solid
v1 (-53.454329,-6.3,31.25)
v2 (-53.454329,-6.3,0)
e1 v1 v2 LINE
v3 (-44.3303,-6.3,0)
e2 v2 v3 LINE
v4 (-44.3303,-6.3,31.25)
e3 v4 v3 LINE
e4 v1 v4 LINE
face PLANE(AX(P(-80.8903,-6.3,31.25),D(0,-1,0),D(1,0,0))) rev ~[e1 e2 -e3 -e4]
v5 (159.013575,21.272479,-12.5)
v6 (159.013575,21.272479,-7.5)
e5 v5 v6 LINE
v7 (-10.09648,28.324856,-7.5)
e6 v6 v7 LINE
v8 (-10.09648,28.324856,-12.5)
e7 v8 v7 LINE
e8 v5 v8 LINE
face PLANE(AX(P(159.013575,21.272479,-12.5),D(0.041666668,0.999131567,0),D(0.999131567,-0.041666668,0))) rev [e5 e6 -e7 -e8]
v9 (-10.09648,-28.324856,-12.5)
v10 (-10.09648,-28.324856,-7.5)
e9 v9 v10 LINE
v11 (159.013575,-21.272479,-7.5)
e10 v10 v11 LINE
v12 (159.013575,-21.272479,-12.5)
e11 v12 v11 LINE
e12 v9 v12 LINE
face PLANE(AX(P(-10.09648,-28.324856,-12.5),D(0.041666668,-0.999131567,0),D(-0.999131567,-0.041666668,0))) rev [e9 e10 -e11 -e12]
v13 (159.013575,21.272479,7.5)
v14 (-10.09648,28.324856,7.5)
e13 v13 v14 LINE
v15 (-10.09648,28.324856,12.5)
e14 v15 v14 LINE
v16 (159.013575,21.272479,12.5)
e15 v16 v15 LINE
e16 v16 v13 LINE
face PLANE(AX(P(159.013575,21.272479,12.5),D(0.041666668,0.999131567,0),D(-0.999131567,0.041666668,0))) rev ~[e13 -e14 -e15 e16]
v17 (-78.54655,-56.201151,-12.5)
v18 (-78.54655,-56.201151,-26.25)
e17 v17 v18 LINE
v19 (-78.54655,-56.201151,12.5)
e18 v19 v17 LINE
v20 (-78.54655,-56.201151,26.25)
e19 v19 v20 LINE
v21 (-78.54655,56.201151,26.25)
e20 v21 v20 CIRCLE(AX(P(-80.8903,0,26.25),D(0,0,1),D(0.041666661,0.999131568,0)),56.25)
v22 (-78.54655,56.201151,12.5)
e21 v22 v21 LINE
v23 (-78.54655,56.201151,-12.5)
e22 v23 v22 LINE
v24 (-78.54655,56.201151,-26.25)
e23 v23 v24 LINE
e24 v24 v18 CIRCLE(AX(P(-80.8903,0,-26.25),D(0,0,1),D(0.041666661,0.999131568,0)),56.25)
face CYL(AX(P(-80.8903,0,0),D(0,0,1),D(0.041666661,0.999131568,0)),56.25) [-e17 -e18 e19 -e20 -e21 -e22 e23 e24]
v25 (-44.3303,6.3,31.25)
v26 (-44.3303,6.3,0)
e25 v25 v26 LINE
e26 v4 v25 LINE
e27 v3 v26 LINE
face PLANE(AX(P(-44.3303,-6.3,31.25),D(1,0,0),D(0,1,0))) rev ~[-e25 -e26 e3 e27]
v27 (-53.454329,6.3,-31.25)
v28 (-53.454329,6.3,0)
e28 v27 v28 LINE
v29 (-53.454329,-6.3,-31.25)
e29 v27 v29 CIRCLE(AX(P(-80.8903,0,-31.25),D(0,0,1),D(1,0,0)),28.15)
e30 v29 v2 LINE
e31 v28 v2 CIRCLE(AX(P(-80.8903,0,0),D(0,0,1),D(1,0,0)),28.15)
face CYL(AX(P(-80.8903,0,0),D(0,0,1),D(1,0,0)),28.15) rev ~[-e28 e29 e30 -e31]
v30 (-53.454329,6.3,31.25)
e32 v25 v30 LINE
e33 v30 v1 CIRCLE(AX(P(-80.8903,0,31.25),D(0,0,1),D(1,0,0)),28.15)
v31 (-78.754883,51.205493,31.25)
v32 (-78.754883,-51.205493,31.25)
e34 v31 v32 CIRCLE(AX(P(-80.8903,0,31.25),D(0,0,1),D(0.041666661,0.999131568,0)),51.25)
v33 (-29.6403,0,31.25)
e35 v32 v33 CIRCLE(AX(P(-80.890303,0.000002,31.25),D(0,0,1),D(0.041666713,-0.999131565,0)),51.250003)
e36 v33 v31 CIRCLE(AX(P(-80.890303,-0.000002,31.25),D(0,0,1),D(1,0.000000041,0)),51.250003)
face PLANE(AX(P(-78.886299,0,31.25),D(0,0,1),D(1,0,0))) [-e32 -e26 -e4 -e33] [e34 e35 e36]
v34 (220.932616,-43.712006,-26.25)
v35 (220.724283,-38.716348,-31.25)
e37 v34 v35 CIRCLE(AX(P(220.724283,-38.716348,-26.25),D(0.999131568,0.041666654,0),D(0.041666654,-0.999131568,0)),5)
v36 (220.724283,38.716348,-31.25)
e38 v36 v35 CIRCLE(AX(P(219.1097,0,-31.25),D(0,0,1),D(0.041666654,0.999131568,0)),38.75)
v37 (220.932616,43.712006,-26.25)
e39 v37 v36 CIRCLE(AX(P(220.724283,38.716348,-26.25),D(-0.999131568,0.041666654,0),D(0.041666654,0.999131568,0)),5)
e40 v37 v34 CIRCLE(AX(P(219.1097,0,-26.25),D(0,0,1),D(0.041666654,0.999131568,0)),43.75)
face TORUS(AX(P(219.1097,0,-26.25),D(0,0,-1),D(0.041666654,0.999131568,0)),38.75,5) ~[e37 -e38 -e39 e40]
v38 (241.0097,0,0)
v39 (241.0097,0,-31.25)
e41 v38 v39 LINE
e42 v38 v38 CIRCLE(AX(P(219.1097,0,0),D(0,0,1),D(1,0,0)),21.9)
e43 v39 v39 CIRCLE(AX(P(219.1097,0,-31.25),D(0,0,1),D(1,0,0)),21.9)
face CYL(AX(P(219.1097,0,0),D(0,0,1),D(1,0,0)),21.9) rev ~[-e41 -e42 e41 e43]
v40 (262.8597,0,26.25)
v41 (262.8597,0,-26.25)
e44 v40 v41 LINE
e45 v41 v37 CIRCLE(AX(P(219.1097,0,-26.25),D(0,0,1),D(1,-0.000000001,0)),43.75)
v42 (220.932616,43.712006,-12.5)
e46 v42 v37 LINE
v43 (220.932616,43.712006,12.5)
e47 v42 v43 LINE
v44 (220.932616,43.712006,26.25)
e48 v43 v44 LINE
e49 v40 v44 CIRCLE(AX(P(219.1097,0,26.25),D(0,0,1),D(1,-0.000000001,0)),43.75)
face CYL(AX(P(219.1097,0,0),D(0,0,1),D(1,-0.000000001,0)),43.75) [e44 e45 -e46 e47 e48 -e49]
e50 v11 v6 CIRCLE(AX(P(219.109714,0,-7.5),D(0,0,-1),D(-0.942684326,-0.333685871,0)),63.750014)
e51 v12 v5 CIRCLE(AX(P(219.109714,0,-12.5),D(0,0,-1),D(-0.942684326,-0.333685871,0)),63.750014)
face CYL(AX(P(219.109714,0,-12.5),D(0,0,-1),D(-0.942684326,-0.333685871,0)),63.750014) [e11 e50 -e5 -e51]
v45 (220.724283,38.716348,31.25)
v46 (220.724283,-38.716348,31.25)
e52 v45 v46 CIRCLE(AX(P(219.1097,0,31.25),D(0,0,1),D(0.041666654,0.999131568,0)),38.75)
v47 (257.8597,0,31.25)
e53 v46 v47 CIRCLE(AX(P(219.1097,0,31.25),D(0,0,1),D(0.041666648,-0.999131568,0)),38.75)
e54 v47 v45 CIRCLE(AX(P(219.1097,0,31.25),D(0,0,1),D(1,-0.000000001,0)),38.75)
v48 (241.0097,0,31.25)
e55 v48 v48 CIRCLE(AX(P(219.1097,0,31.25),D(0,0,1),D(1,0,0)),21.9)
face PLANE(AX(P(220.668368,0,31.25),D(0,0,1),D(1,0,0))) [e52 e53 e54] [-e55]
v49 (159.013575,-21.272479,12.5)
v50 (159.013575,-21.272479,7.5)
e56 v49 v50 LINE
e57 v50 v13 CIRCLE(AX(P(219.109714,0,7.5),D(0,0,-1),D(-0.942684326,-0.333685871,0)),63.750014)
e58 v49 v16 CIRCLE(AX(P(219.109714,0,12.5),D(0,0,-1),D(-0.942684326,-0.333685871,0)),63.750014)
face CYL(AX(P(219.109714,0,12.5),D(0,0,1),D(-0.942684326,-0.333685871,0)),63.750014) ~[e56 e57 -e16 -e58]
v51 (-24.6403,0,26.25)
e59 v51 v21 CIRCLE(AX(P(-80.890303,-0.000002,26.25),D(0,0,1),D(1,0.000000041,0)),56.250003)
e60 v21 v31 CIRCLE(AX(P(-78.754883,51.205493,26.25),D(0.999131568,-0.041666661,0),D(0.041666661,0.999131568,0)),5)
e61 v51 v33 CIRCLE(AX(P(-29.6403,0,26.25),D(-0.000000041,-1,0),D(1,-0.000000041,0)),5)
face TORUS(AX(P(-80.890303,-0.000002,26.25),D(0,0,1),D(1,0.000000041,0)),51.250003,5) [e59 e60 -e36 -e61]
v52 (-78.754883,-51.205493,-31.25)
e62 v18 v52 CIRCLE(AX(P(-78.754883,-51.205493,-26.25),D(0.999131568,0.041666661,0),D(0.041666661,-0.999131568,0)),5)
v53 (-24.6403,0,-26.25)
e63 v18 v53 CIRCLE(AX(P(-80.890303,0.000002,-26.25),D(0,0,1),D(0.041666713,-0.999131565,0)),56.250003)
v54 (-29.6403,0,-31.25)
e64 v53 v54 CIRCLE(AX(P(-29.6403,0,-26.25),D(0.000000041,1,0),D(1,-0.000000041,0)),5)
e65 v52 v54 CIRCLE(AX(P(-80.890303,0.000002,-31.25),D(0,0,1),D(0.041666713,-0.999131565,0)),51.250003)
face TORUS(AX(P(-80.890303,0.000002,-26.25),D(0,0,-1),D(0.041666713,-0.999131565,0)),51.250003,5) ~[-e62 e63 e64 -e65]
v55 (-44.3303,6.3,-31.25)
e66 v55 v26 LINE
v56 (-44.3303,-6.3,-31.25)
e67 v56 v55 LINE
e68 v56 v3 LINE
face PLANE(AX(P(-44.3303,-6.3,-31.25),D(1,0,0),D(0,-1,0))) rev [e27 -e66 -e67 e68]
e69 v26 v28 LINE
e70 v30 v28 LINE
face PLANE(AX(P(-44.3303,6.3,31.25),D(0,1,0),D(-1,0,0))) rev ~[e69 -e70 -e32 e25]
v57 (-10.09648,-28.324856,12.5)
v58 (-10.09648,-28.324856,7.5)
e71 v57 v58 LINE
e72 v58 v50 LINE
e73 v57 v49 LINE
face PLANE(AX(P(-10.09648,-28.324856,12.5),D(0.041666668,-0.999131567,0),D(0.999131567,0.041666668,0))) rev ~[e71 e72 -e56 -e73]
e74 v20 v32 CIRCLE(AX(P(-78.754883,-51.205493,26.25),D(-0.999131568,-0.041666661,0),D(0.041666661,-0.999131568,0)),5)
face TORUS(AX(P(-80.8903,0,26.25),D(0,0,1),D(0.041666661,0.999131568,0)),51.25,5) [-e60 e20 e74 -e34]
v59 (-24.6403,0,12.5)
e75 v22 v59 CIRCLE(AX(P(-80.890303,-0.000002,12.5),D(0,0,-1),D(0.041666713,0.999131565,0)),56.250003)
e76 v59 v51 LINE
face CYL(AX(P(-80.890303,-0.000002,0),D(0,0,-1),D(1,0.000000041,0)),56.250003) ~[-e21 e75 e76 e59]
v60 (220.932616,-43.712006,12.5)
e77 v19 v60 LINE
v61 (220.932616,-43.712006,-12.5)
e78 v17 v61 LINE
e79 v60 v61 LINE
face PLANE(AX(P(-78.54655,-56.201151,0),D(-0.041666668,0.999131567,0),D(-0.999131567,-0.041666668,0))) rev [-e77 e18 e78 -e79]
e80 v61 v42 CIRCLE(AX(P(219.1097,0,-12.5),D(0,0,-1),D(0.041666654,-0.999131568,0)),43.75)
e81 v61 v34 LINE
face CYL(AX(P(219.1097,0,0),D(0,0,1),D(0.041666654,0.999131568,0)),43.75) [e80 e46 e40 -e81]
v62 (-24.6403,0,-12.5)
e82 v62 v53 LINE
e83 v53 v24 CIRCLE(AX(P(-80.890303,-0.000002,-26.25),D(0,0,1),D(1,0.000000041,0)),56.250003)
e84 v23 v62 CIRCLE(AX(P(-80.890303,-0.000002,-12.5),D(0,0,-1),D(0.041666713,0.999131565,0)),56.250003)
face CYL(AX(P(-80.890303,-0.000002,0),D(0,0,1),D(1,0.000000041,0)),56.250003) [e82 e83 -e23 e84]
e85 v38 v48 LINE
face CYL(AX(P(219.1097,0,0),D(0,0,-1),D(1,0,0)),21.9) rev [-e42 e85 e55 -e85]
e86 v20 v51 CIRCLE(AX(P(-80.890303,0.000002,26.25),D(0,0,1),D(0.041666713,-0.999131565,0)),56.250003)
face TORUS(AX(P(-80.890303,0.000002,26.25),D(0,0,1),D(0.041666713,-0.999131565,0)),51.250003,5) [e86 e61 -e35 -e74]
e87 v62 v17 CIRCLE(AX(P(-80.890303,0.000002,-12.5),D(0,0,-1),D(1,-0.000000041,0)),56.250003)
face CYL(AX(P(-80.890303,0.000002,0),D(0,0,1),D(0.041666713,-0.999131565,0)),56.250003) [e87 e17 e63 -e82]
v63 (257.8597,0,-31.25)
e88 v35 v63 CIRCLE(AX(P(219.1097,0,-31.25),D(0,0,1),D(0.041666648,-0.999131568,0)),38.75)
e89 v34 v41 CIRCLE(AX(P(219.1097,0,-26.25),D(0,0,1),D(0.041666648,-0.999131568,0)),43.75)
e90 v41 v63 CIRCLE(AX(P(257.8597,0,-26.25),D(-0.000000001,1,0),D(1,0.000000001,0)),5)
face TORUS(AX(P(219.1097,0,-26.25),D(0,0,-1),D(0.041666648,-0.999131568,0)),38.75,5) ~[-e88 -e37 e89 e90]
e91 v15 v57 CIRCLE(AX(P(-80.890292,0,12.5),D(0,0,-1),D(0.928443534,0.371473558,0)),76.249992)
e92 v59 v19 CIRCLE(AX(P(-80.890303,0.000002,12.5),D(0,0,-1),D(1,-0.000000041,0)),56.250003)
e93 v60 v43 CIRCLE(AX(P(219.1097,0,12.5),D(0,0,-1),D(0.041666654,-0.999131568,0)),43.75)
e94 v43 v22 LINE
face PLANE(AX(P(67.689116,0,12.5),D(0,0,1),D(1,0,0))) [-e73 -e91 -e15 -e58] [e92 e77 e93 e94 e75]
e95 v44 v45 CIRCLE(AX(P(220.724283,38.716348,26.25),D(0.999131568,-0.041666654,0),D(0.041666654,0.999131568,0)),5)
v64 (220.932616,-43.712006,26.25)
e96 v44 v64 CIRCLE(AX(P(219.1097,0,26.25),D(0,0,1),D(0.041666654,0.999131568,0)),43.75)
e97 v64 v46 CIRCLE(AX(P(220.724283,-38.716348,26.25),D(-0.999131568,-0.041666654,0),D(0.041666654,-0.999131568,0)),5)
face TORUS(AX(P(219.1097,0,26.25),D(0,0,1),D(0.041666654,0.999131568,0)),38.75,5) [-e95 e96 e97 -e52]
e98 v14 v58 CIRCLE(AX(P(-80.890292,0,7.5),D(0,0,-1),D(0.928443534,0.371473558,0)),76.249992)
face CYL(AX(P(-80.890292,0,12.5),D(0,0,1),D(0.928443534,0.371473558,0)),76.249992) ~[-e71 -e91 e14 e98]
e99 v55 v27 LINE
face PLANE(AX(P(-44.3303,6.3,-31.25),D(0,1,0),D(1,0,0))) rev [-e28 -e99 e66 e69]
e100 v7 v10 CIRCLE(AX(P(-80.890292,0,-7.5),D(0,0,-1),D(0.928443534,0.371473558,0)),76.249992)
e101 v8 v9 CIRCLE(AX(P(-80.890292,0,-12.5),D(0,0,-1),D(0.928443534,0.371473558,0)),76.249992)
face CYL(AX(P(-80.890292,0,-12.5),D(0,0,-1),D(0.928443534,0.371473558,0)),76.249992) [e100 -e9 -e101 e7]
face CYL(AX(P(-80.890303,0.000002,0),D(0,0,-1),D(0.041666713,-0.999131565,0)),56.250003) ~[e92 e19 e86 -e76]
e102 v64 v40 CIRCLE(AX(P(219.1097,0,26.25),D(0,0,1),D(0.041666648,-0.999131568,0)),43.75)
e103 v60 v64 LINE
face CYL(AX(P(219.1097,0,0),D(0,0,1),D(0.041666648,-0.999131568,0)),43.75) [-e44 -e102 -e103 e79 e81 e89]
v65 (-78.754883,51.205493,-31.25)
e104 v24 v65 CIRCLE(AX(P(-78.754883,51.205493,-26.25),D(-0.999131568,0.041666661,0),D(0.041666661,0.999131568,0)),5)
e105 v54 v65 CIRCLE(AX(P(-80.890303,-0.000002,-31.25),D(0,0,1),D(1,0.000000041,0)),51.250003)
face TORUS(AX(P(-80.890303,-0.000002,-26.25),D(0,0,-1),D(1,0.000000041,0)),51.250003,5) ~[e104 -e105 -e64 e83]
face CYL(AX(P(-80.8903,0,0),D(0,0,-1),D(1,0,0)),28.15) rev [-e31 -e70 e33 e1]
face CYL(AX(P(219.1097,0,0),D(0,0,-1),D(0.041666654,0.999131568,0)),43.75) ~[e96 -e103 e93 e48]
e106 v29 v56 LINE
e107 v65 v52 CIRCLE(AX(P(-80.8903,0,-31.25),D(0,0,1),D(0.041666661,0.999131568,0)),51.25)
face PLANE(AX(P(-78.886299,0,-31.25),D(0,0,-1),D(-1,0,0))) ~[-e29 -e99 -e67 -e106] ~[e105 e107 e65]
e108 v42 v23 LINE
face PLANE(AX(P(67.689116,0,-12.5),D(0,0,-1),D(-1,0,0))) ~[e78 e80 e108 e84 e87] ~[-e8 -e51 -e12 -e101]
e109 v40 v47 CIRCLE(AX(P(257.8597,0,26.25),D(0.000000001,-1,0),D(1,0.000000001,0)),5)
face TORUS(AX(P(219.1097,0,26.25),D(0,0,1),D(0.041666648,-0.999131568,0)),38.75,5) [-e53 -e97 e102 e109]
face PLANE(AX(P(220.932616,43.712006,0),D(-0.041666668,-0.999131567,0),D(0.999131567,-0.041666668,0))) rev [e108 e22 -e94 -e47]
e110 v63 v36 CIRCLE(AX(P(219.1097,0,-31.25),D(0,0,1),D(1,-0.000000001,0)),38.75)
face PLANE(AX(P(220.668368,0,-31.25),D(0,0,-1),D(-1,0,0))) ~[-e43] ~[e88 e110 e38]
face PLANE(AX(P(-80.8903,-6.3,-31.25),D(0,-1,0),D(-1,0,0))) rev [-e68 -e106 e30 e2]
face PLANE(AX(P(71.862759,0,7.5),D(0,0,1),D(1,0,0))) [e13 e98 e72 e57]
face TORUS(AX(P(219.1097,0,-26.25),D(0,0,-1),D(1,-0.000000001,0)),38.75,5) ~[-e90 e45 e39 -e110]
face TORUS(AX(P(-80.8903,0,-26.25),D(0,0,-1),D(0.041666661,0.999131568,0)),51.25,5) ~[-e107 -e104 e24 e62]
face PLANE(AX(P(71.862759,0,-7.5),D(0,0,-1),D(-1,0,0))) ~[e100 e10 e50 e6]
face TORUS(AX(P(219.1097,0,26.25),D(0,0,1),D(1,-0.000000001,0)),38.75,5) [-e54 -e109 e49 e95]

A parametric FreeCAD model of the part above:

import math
import FreeCAD as App
import Part
import Sketcher
from FreeCAD import Vector


def edges_at(feature, points):
    """Names of the edges that pass closest to the given points."""
    edges = feature.Shape.Edges
    near = lambda p: min(range(len(edges)), key=lambda i: edges[i].distToShape(Part.Vertex(*p))[0])
    return sorted({f"Edge{near(p) + 1}" for p in points})


def add_polygon(sketch, points):
    """Adds a closed chain of lines whose ends are joined by coincident constraints."""
    first, n = sketch.GeometryCount, len(points)
    for a, b in zip(points, points[1:] + points[:1]):
        sketch.addGeometry(Part.LineSegment(App.Vector(*a, 0), App.Vector(*b, 0)), False)
    for i in range(n):
        sketch.addConstraint(Sketcher.Constraint("Coincident", first + i, 2, first + (i + 1) % n, 1))

doc = App.newDocument("Part")
body = doc.addObject("PartDesign::Body", "Body")

sketch1 = body.newObject("Sketcher::SketchObject", "Sketch")
sketch1.AttachmentSupport = (doc.getObject("XY_Plane"), [""])
sketch1.MapMode = "FlatFace"
sketch1.addGeometry(Part.ArcOfCircle(Part.Circle(Vector(-81, 0, 0), Vector(0, 0, 1), 56), math.radians(0), math.radians(88)), False)
sketch1.addGeometry(Part.ArcOfCircle(Part.Circle(Vector(-81, 0, 0), Vector(0, 0, 1), 56), math.radians(-88), math.radians(0)), False)
sketch1.addGeometry(Part.LineSegment(Vector(-79, -56, 0), Vector(221, -44, 0)), False)
sketch1.addGeometry(Part.ArcOfCircle(Part.Circle(Vector(219, 0, 0), Vector(0, 0, 1), 44), math.radians(88), math.radians(272)), False)
sketch1.addGeometry(Part.LineSegment(Vector(221, 44, 0), Vector(-79, 56, 0)), False)
sketch1.addConstraint(Sketcher.Constraint("Tangent", 0, 1, 1, 2))
sketch1.addConstraint(Sketcher.Constraint("Tangent", 1, 1, 2, 1))
sketch1.addConstraint(Sketcher.Constraint("Tangent", 2, 2, 3, 2))
sketch1.addConstraint(Sketcher.Constraint("Tangent", 3, 1, 4, 1))
sketch1.addConstraint(Sketcher.Constraint("Tangent", 4, 2, 0, 2))
sketch1.addConstraint(Sketcher.Constraint("Equal", 0, 1))
sketch1.addConstraint(Sketcher.Constraint("Symmetric", 2, 2, 3, 1, -1))
sketch1.addConstraint(Sketcher.Constraint("PointOnObject", 0, 1, -1))
sketch1.addConstraint(Sketcher.Constraint("Radius", 3, 43.75))
sketch1.addConstraint(Sketcher.Constraint("DistanceX", 0, 1, 3, 3, 243.75))
sketch1.addConstraint(Sketcher.Constraint("Radius", 0, 56.250003))
sketch1.addConstraint(Sketcher.Constraint("DistanceX", -1, 1, 3, 3, 219.1097))
pad1 = body.newObject("PartDesign::Pad", "Pad")
pad1.Profile = sketch1
pad1.Length = 12.5

sketch2 = body.newObject("Sketcher::SketchObject", "Sketch001")
sketch2.AttachmentSupport = (doc.getObject("XY_Plane"), [""])
sketch2.MapMode = "FlatFace"
sketch2.addGeometry(Part.ArcOfCircle(Part.Circle(Vector(219, 0, 0), Vector(0, 0, 1), 44), math.radians(0), math.radians(88)), False)
sketch2.addGeometry(Part.ArcOfCircle(Part.Circle(Vector(219, 0, 0), Vector(0, 0, 1), 44), math.radians(88), math.radians(272)), False)
sketch2.addGeometry(Part.ArcOfCircle(Part.Circle(Vector(219, 0, 0), Vector(0, 0, 1), 44), math.radians(-88), math.radians(0)), False)
sketch2.addGeometry(Part.Circle(Vector(219, 0, 0), Vector(0, 0, 1), 22), False)
sketch2.addGeometry(Part.ArcOfCircle(Part.Circle(Vector(-81, 0, 0), Vector(0, 0, 1), 56), math.radians(-88), math.radians(0)), False)
sketch2.addGeometry(Part.ArcOfCircle(Part.Circle(Vector(-81, 0, 0), Vector(0, 0, 1), 56), math.radians(0), math.radians(88)), False)
sketch2.addGeometry(Part.ArcOfCircle(Part.Circle(Vector(-81, 0, 0), Vector(0, 0, 1), 56), math.radians(88), math.radians(272)), False)
sketch2.addGeometry(Part.Circle(Vector(-81, 0, 0), Vector(0, 0, 1), 28), False)
sketch2.addConstraint(Sketcher.Constraint("Tangent", 0, 2, 1, 1))
sketch2.addConstraint(Sketcher.Constraint("Tangent", 1, 2, 2, 1))
sketch2.addConstraint(Sketcher.Constraint("Tangent", 2, 2, 0, 1))
sketch2.addConstraint(Sketcher.Constraint("Tangent", 4, 2, 5, 1))
sketch2.addConstraint(Sketcher.Constraint("Tangent", 5, 2, 6, 1))
sketch2.addConstraint(Sketcher.Constraint("Tangent", 6, 2, 4, 1))
sketch2.addConstraint(Sketcher.Constraint("Coincident", 3, 3, 0, 3))
sketch2.addConstraint(Sketcher.Constraint("Coincident", 7, 3, 4, 3))
sketch2.addConstraint(Sketcher.Constraint("Symmetric", 0, 2, 1, 2, -1))
sketch2.addConstraint(Sketcher.Constraint("Symmetric", 5, 2, 6, 2, -1))
sketch2.addConstraint(Sketcher.Constraint("PointOnObject", 2, 2, -1))
sketch2.addConstraint(Sketcher.Constraint("PointOnObject", 4, 2, -1))
sketch2.addConstraint(Sketcher.Constraint("Diameter", 3, 43.8))
sketch2.addConstraint(Sketcher.Constraint("Diameter", 7, 56.3))
sketch2.addConstraint(Sketcher.Constraint("Radius", 0, 43.75))
sketch2.addConstraint(Sketcher.Constraint("Radius", 6, 56.25))
sketch2.addConstraint(Sketcher.Constraint("DistanceX", 6, 3, 1, 3, 300.0))
sketch2.addConstraint(Sketcher.Constraint("DistanceX", -1, 1, 0, 3, 219.1097))
sketch2.addConstraint(Sketcher.Constraint("DistanceX", 5, 2, -1, 1, 78.54655))
sketch2.addConstraint(Sketcher.Constraint("DistanceY", 1, 2, 0, 2, 87.424012))
pad2 = body.newObject("PartDesign::Pad", "Pad001")
pad2.Profile = sketch2
pad2.Length = 31.25

sketch3 = body.newObject("Sketcher::SketchObject", "Sketch002")
sketch3.AttachmentSupport = (doc.getObject("XY_Plane"), [""])
sketch3.MapMode = "FlatFace"
sketch3.AttachmentOffset = App.Placement(Vector(0, 0, 12.5), App.Rotation())
sketch3.addGeometry(Part.ArcOfCircle(Part.Circle(Vector(219, 0, 0), Vector(0, 0, 1), 64), math.radians(161), math.radians(199)), False)
sketch3.addGeometry(Part.LineSegment(Vector(159, 21, 0), Vector(-10, 28, 0)), False)
sketch3.addGeometry(Part.ArcOfCircle(Part.Circle(Vector(-81, 0, 0), Vector(0, 0, 1), 76), math.radians(-22), math.radians(22)), False)
sketch3.addGeometry(Part.LineSegment(Vector(-10, -28, 0), Vector(159, -21, 0)), False)
sketch3.addConstraint(Sketcher.Constraint("Coincident", 0, 1, 1, 1))
sketch3.addConstraint(Sketcher.Constraint("Coincident", 1, 2, 2, 2))
sketch3.addConstraint(Sketcher.Constraint("Coincident", 2, 1, 3, 1))
sketch3.addConstraint(Sketcher.Constraint("Coincident", 3, 2, 0, 2))
sketch3.addConstraint(Sketcher.Constraint("Symmetric", 1, 2, 2, 1, -1))
sketch3.addConstraint(Sketcher.Constraint("Symmetric", 0, 1, 3, 2, -1))
sketch3.addConstraint(Sketcher.Constraint("Radius", 0, 63.750014))
sketch3.addConstraint(Sketcher.Constraint("Radius", 2, 76.249992))
sketch3.addConstraint(Sketcher.Constraint("DistanceY", -1, 1, 0, 1, 21.272479))
sketch3.addConstraint(Sketcher.Constraint("DistanceX", 1, 2, -1, 1, 10.09648))
sketch3.addConstraint(Sketcher.Constraint("DistanceY", 2, 1, 1, 2, 56.649712))
sketch3.addConstraint(Sketcher.Constraint("Distance", 1, 169.257043))
pocket1 = body.newObject("PartDesign::Pocket", "Pocket")
pocket1.Profile = sketch3
pocket1.Length = 5

sketch4 = body.newObject("Sketcher::SketchObject", "Sketch003")
sketch4.AttachmentSupport = (doc.getObject("XY_Plane"), [""])
sketch4.MapMode = "FlatFace"
sketch4.AttachmentOffset = App.Placement(Vector(0, 0, 31.25), App.Rotation())
add_polygon(sketch4, [(-44, 6), (-81, 6), (-81, -6), (-44, -6)])
sketch4.addConstraint(Sketcher.Constraint("Horizontal", 0))
sketch4.addConstraint(Sketcher.Constraint("Vertical", 1))
sketch4.addConstraint(Sketcher.Constraint("Horizontal", 2))
sketch4.addConstraint(Sketcher.Constraint("Vertical", 3))
sketch4.addConstraint(Sketcher.Constraint("DistanceY", 1, 2, 1, 1, 12.6))
sketch4.addConstraint(Sketcher.Constraint("DistanceX", 0, 2, 0, 1, 36.56))
sketch4.addConstraint(Sketcher.Constraint("DistanceY", -1, 1, 0, 2, 6.3))
sketch4.addConstraint(Sketcher.Constraint("DistanceX", 0, 2, -1, 1, 80.8903))
pocket2 = body.newObject("PartDesign::Pocket", "Pocket001")
pocket2.Profile = sketch4
pocket2.Length = 130.647779
doc.recompute()

fillet = body.newObject("PartDesign::Fillet", "Fillet")
fillet.Base = (pocket2, edges_at(pocket2, [(-137.14, 0, 31.25), (175.36, 0, 31.25)]))
fillet.Radius = 5
body2 = doc.addObject("PartDesign::Body", "Body001")
doc.recompute()

body2.BaseFeature = body
doc.recompute()

mirroring = doc.addObject("Part::Mirroring", "Mirroring")
mirroring.Source = body
mirroring.Base = Vector(57.759203, 0, 0)
mirroring.Normal = Vector(0, 0, -1)
body3 = doc.addObject("PartDesign::Body", "Body002")
body3.BaseFeature = mirroring
boolean = body2.newObject("PartDesign::Boolean", "Boolean")
boolean.Type = "Fuse"
boolean.addObjects([body3])
doc.recompute()
mirroring.Visibility = False

doc.recompute()
